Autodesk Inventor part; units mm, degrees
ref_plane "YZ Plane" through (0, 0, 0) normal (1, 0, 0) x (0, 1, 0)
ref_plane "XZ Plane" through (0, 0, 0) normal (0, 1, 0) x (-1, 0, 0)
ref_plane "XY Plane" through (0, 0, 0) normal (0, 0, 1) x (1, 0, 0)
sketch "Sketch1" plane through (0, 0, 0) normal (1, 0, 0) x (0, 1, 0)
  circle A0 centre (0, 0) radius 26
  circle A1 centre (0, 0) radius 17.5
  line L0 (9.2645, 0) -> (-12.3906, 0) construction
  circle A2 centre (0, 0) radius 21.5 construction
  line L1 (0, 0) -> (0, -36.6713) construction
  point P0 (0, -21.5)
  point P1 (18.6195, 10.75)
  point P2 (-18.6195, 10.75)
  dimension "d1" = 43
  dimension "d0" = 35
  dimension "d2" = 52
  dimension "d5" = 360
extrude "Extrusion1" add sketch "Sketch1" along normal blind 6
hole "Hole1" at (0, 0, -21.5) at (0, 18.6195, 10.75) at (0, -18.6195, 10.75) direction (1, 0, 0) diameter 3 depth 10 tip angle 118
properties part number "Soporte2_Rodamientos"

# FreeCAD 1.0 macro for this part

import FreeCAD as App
import Part
import Sketcher
Q = App.Units.Quantity

doc = App.newDocument("Part")
body = doc.addObject("PartDesign::Body", "Body")

sketch1 = doc.addObject("Sketcher::SketchObject", "Sketch")
body.addObject(sketch1)
sketch1.AttachmentSupport = (doc.YZ_Plane, [""])
sketch1.MapMode = "FlatFace"
sketch1.addGeometry(Part.Circle(App.Vector(0, 0, 0), App.Vector(0, 0, 1), 26), False)
sketch1.addGeometry(Part.Circle(App.Vector(0, 0, 0), App.Vector(0, 0, 1), 18), False)
sketch1.addConstraint(Sketcher.Constraint("Coincident", 0, 3, -1, 1))
sketch1.addConstraint(Sketcher.Constraint("Coincident", 1, 3, -1, 1))
sketch1.addConstraint(Sketcher.Constraint("Diameter", 0, Q("52 mm")))
sketch1.addConstraint(Sketcher.Constraint("Diameter", 1, Q("35 mm")))
pad1 = doc.addObject("PartDesign::Pad", "Pad")
body.addObject(pad1)
pad1.Profile = sketch1
pad1.Length = 6

sketch2 = doc.addObject("Sketcher::SketchObject", "Sketch001")
body.addObject(sketch2)
sketch2.AttachmentSupport = (doc.YZ_Plane, [""])
sketch2.MapMode = "FlatFace"
sketch2.addGeometry(Part.Circle(App.Vector(0, -21.5, 0), App.Vector(0, 0, 1), 1.5), False)
sketch2.addGeometry(Part.Circle(App.Vector(18.6, 10.8, 0), App.Vector(0, 0, 1), 1.5), False)
sketch2.addGeometry(Part.Circle(App.Vector(-18.6, 10.8, 0), App.Vector(0, 0, 1), 1.5), False)
sketch2.addConstraint(Sketcher.Constraint("Equal", 0, 1))
sketch2.addConstraint(Sketcher.Constraint("Equal", 1, 2))
sketch2.addConstraint(Sketcher.Constraint("Symmetric", 1, 3, 2, 3, -2))
sketch2.addConstraint(Sketcher.Constraint("PointOnObject", 0, 3, -2))
sketch2.addConstraint(Sketcher.Constraint("Diameter", 0, Q("3 mm")))
sketch2.addConstraint(Sketcher.Constraint("DistanceY", 0, 3, -1, 1, Q("21.5 mm")))
sketch2.addConstraint(Sketcher.Constraint("DistanceY", -1, 1, 1, 3, Q("10.75 mm")))
sketch2.addConstraint(Sketcher.Constraint("DistanceX", 2, 3, 1, 3, Q("37.239 mm")))
doc.recompute()
hole = doc.addObject("PartDesign::Hole", "Hole")
body.addObject(hole)
hole.Profile = sketch2
hole.ThreadType = "None"
hole.Diameter = 3
hole.DepthType = "Dimension"
hole.Depth = 10
hole.DrillPoint = "Angled"
hole.DrillPointAngle = 118
hole.Reversed = True

doc.recompute()
